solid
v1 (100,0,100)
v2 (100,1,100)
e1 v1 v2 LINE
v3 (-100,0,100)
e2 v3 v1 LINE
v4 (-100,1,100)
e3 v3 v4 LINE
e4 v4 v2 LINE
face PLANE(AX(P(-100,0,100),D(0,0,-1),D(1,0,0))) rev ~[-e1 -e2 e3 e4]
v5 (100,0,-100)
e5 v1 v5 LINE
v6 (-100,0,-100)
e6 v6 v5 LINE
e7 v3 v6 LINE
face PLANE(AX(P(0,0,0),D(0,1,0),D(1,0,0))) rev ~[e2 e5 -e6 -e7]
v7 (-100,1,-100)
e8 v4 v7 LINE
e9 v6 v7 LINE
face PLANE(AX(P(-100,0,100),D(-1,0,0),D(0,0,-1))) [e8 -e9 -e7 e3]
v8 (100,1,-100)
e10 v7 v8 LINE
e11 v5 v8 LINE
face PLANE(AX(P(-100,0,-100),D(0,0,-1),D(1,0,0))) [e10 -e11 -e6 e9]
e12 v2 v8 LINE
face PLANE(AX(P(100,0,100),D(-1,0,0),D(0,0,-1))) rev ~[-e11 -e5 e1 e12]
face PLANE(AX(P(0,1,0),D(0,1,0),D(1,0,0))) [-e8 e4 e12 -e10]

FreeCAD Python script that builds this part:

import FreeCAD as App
import Part
import Sketcher
from FreeCAD import Vector

doc = App.newDocument("Part")
body = doc.addObject("PartDesign::Body", "Body")

# Sketch on XZ plane
sketch1 = body.newObject("Sketcher::SketchObject", "Sketch")
sketch1.AttachmentSupport = (doc.getObject("XZ_Plane"), [""])
sketch1.MapMode = "FlatFace"
sketch1.addGeometry([
    Part.LineSegment(Vector(-100, -100, 0), Vector(-100, 100, 0)),
    Part.LineSegment(Vector(-100, 100, 0), Vector(100, 100, 0)),
    Part.LineSegment(Vector(100, 100, 0), Vector(100, -100, 0)),
    Part.LineSegment(Vector(100, -100, 0), Vector(-100, -100, 0)),
], False)
sketch1.addConstraint([
    Sketcher.Constraint("Coincident", 0, 2, 1, 1),
    Sketcher.Constraint("Coincident", 1, 2, 2, 1),
    Sketcher.Constraint("Coincident", 2, 2, 3, 1),
    Sketcher.Constraint("Coincident", 3, 2, 0, 1),
    Sketcher.Constraint("Vertical", 0),
    Sketcher.Constraint("Horizontal", 1),
    Sketcher.Constraint("Vertical", 2),
    Sketcher.Constraint("Horizontal", 3),
    Sketcher.Constraint("Symmetric", 0, 2, 2, 2, -1, 1),
    Sketcher.Constraint("Equal", 3, 0),
    Sketcher.Constraint("DistanceX", 1, 1, 1, 2, 200.0),
])
pad1 = body.newObject("PartDesign::Pad", "Pad")
pad1.Profile = sketch1
pad1.Length = 1
pad1.Reversed = True

doc.recompute()
